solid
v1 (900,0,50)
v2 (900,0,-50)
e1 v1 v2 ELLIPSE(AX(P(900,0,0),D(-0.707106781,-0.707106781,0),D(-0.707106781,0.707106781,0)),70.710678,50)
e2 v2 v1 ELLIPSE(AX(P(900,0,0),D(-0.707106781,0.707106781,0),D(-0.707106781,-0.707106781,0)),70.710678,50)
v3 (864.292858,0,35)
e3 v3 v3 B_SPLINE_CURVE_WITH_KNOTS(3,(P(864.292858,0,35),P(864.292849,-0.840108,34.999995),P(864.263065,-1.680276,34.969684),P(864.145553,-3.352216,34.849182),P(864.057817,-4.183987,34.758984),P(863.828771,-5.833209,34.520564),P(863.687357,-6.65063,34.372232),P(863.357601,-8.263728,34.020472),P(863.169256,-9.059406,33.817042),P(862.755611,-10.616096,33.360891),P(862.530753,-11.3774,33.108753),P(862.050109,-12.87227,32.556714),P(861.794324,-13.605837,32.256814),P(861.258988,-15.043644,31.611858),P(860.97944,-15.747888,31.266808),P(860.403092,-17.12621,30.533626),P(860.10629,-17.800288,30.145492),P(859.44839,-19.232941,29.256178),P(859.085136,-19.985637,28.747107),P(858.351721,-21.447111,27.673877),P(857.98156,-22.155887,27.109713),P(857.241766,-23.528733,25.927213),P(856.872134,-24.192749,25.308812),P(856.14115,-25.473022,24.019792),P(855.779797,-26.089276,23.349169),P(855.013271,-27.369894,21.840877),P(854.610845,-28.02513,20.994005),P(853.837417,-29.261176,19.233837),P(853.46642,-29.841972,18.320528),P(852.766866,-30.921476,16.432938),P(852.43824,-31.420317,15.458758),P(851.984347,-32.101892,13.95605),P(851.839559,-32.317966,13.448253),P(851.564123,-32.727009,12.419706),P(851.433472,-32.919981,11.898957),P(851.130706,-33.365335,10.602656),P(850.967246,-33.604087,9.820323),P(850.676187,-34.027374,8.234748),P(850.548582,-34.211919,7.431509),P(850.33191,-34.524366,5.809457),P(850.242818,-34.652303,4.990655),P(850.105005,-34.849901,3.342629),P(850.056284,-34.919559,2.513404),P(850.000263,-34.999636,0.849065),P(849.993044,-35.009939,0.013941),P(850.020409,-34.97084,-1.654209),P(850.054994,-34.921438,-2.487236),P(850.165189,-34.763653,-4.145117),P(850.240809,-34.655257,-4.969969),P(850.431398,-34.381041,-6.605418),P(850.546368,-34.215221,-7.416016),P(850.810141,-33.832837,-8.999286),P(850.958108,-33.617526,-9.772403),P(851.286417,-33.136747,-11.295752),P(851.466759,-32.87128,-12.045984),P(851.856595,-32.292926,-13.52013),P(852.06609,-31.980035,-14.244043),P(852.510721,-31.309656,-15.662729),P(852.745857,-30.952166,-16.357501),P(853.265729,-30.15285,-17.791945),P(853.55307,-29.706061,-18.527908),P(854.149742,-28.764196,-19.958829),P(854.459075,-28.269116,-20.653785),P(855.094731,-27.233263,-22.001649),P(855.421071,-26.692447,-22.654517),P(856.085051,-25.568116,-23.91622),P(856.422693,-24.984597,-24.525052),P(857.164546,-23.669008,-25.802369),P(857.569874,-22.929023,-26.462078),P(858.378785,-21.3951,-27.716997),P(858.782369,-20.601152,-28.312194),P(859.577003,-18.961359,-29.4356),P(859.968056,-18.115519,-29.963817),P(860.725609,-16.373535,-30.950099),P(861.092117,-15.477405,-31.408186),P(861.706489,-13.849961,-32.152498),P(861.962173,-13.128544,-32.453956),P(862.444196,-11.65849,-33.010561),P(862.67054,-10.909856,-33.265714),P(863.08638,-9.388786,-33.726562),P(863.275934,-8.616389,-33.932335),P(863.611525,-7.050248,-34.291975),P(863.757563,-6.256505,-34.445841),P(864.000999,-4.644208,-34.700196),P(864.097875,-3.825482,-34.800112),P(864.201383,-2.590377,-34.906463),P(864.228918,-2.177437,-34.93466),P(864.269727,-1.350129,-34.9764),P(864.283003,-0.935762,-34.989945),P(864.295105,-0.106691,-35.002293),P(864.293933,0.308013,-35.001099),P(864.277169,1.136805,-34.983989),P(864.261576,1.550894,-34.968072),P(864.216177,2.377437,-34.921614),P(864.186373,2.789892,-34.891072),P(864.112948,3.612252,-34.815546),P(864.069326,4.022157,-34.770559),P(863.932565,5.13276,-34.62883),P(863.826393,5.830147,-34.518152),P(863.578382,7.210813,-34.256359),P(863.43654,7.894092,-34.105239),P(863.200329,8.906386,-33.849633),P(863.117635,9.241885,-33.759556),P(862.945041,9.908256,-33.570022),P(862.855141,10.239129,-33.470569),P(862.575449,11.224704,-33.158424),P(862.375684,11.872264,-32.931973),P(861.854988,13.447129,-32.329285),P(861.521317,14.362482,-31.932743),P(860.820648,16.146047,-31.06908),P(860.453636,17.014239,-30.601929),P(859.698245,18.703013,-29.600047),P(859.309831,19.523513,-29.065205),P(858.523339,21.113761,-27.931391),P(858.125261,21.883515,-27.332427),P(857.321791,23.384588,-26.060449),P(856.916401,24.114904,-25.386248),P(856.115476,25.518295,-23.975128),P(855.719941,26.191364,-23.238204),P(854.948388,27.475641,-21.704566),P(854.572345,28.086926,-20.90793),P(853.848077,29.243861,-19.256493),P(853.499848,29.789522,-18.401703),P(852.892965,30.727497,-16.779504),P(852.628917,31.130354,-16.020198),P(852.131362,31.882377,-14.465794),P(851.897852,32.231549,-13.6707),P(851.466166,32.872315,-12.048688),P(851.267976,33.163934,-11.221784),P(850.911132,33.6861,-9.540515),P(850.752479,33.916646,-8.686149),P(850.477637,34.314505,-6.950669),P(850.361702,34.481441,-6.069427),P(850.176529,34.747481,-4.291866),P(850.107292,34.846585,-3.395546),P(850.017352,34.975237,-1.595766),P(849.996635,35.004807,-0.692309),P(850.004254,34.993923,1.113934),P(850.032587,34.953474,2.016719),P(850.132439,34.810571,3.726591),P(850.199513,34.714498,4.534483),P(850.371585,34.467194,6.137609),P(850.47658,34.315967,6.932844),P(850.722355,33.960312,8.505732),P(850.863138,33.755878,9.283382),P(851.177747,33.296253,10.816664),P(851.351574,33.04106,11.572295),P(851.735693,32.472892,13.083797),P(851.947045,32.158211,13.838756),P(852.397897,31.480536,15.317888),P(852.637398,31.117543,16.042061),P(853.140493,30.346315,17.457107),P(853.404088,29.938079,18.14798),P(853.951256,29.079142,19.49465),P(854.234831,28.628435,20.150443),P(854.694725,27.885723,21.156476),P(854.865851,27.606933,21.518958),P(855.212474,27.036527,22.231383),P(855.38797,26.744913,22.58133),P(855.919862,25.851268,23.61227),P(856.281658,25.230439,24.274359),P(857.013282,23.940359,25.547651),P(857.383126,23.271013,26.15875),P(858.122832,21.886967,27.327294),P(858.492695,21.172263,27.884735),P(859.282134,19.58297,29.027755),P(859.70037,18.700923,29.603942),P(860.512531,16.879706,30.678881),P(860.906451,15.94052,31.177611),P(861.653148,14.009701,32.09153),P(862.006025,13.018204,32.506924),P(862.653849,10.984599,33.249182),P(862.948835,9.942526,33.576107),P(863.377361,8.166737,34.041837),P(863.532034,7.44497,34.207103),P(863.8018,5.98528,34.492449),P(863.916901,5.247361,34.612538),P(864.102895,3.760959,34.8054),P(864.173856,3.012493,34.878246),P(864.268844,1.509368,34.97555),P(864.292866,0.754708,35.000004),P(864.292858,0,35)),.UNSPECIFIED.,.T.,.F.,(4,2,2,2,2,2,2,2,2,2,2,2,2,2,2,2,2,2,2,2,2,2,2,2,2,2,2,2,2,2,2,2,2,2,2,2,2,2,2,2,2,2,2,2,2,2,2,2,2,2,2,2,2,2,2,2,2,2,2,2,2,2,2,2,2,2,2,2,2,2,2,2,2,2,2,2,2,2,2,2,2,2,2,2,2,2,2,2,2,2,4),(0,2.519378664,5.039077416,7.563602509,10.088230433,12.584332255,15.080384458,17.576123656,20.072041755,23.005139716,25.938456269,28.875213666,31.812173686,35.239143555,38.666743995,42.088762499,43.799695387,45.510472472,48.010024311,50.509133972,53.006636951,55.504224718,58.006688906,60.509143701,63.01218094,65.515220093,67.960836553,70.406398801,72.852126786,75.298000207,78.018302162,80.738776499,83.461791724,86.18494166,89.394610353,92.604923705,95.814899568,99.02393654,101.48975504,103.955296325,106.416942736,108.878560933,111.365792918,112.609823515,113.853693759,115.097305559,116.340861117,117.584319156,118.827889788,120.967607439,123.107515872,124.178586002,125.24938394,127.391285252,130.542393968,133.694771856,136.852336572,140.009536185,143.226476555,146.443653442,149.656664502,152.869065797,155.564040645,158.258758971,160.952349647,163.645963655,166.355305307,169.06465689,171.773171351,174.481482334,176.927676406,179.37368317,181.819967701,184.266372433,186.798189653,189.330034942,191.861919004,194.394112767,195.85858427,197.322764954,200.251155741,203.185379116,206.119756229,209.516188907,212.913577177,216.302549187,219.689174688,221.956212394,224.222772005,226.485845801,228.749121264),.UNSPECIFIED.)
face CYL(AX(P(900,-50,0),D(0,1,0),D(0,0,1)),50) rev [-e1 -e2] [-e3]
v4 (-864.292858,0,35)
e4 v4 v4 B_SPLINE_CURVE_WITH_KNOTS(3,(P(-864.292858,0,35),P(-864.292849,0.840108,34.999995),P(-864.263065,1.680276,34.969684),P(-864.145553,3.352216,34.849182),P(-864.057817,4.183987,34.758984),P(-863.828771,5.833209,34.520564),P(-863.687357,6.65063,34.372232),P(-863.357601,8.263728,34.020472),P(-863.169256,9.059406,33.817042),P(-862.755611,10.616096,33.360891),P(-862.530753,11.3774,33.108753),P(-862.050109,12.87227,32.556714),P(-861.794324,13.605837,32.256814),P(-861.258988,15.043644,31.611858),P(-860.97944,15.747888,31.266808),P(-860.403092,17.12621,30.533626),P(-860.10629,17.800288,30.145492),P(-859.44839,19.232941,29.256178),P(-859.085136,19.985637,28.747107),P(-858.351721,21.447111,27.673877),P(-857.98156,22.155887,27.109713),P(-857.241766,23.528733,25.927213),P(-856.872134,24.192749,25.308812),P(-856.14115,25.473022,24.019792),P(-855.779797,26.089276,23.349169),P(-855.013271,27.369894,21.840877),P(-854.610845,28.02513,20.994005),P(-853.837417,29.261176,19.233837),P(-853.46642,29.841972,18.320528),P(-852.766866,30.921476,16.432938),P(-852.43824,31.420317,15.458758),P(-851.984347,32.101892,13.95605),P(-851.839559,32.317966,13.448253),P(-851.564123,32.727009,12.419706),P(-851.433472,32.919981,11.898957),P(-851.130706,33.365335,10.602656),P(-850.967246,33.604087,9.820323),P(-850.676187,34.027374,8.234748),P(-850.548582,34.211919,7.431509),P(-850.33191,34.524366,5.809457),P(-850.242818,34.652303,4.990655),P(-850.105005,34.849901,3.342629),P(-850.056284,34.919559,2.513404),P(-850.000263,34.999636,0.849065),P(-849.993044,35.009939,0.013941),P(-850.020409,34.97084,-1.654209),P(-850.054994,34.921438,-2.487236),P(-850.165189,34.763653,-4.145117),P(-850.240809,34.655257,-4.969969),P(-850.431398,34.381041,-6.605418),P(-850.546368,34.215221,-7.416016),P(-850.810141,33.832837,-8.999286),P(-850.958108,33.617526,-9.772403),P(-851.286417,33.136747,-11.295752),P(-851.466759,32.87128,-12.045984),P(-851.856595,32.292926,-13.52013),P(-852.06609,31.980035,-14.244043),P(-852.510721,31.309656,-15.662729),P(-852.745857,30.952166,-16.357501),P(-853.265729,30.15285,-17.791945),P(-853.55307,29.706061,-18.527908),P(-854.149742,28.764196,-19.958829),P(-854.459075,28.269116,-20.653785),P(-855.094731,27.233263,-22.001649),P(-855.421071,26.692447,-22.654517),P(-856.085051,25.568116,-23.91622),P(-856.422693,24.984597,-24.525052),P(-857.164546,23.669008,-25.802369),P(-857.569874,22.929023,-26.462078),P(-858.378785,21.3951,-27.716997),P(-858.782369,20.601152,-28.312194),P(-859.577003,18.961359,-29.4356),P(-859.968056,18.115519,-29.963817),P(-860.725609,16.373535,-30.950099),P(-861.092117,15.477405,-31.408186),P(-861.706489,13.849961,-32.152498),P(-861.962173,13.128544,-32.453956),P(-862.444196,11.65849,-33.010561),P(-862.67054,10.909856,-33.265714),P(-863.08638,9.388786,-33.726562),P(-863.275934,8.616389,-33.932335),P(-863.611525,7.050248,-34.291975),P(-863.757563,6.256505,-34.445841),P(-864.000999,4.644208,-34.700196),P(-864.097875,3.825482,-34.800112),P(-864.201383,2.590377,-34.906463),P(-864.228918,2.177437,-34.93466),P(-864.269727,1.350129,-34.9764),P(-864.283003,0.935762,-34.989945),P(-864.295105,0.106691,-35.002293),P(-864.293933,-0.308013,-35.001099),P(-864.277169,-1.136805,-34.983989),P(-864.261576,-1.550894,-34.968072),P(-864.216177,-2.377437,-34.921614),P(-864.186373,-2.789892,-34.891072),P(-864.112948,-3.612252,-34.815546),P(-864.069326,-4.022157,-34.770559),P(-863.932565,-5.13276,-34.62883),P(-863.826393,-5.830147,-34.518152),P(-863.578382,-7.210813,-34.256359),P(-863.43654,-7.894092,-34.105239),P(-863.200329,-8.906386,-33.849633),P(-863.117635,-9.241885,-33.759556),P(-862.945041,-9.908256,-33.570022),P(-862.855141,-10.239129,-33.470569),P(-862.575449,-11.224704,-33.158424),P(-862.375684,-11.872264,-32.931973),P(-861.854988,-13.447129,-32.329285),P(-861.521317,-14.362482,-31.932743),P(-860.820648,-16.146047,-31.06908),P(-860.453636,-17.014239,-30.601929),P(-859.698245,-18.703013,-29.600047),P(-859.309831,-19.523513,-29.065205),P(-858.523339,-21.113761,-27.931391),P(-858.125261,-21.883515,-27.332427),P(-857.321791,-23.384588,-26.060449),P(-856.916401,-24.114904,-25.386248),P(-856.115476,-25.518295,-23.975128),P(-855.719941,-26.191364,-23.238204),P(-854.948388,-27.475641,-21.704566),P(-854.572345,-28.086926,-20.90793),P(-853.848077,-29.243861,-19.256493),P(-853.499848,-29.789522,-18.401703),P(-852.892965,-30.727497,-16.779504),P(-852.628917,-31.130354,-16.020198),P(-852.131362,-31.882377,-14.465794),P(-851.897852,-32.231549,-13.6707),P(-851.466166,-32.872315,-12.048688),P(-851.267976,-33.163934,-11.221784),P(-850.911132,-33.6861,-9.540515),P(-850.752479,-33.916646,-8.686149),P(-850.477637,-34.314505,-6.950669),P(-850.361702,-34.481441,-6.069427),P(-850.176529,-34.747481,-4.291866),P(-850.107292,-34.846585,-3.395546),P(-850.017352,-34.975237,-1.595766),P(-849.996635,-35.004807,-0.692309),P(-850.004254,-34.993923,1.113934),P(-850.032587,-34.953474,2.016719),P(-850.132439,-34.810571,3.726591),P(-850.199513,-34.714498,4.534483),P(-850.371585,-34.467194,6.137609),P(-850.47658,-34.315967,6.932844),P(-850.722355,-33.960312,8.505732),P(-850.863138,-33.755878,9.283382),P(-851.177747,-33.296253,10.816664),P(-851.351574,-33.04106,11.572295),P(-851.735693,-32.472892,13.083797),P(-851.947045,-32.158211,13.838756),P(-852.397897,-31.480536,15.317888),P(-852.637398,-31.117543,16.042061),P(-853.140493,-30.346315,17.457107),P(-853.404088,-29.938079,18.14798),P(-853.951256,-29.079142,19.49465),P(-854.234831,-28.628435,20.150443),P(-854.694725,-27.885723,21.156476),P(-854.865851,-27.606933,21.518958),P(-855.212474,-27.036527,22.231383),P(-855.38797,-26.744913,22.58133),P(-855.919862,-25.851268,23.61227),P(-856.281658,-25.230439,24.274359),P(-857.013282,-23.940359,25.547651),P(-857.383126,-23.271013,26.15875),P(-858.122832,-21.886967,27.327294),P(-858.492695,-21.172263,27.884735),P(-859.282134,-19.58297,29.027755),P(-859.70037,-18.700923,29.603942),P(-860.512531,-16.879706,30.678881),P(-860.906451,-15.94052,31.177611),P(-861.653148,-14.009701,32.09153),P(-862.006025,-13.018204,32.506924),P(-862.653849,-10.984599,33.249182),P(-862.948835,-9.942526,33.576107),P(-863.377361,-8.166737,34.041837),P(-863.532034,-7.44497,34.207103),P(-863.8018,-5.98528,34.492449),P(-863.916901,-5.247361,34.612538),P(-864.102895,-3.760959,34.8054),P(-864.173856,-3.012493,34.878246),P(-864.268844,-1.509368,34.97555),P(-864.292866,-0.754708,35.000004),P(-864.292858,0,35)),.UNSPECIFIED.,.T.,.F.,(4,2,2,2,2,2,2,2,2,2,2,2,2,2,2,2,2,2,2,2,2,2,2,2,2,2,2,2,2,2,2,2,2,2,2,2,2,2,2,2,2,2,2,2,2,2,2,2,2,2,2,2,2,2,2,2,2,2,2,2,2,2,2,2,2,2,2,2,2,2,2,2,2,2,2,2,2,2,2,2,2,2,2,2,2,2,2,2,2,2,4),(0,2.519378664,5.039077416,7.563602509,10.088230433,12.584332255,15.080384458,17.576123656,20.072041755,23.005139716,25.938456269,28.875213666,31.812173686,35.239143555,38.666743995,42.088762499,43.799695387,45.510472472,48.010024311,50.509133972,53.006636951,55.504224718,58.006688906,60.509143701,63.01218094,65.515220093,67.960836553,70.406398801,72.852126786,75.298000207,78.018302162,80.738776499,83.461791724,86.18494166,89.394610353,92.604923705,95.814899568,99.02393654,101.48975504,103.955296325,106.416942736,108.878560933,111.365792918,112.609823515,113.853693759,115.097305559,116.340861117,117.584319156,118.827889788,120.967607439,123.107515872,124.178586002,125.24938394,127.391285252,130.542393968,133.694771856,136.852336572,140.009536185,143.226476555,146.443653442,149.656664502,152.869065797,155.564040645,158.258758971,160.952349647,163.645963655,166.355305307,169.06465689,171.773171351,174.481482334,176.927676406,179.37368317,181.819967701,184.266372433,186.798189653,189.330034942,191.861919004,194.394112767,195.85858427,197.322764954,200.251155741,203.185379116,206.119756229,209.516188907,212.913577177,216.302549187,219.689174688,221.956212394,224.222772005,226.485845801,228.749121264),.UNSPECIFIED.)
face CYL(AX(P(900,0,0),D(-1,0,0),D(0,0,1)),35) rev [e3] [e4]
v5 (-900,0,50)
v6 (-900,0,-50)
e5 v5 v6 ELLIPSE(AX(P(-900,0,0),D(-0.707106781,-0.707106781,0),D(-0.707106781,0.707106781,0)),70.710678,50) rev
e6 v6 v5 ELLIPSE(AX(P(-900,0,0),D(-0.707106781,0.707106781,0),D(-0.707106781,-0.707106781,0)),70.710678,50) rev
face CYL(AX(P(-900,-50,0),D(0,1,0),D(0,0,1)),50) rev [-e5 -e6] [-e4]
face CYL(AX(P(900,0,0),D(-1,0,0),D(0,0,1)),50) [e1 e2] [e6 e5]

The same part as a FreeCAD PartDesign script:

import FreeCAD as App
import Part
import Sketcher
from FreeCAD import Vector

doc = App.newDocument("Part")
body = doc.addObject("PartDesign::Body", "Body")

# Sketch on YZ plane
sketch1 = body.newObject("Sketcher::SketchObject", "Sketch")
sketch1.AttachmentSupport = (doc.getObject("YZ_Plane"), [""])
sketch1.MapMode = "FlatFace"
sketch1.addGeometry(Part.Circle(Vector(0, 0, 0), Vector(0, 0, 1), 50), False)
sketch1.addGeometry(Part.Circle(Vector(0, 0, 0), Vector(0, 0, 1), 35), False)
sketch1.addConstraint(Sketcher.Constraint("Coincident", 0, 3, -1, 1))
sketch1.addConstraint(Sketcher.Constraint("Coincident", 1, 3, -1, 1))
sketch1.addConstraint(Sketcher.Constraint("Diameter", 0, 100.0))
sketch1.addConstraint(Sketcher.Constraint("Diameter", 1, 70.0))

# Sketch on XY plane
sketch2 = body.newObject("Sketcher::SketchObject", "Sketch001")
sketch2.AttachmentSupport = (doc.getObject("XY_Plane"), [""])
sketch2.MapMode = "FlatFace"
sketch2.addGeometry(Part.LineSegment(Vector(-900, 0, 0), Vector(900, 0, 0)), False)
sketch2.addConstraint(Sketcher.Constraint("Horizontal", 0))
sketch2.addConstraint(Sketcher.Constraint("Symmetric", 0, 1, 0, 2, -1, 1))
sketch2.addConstraint(Sketcher.Constraint("DistanceX", 0, 1, 0, 2, 1800.0))
doc.recompute()

additivepipe = body.newObject("PartDesign::AdditivePipe", "AdditivePipe")
additivepipe.Profile = sketch1
additivepipe.Spine = (sketch2, ["Edge1"])

# Sketch on XZ plane
sketch3 = body.newObject("Sketcher::SketchObject", "Sketch002")
sketch3.AttachmentSupport = (doc.getObject("XZ_Plane"), [""])
sketch3.MapMode = "FlatFace"
sketch3.addGeometry(Part.Circle(Vector(900, 0, 0), Vector(0, 0, 1), 50), False)
sketch3.addGeometry(Part.Circle(Vector(-900, 0, 0), Vector(0, 0, 1), 50), False)
sketch3.addConstraint(Sketcher.Constraint("Equal", 0, 1))
sketch3.addConstraint(Sketcher.Constraint("Symmetric", 0, 3, 1, 3, -1, 1))
sketch3.addConstraint(Sketcher.Constraint("PointOnObject", 0, 3, -1))
sketch3.addConstraint(Sketcher.Constraint("Diameter", 0, 100.0))
sketch3.addConstraint(Sketcher.Constraint("DistanceX", -1, 1, 0, 3, 900.0))
pocket1 = body.newObject("PartDesign::Pocket", "Pocket")
pocket1.Profile = sketch3
pocket1.Type = "ThroughAll"
pocket1.Midplane = True

doc.recompute()
